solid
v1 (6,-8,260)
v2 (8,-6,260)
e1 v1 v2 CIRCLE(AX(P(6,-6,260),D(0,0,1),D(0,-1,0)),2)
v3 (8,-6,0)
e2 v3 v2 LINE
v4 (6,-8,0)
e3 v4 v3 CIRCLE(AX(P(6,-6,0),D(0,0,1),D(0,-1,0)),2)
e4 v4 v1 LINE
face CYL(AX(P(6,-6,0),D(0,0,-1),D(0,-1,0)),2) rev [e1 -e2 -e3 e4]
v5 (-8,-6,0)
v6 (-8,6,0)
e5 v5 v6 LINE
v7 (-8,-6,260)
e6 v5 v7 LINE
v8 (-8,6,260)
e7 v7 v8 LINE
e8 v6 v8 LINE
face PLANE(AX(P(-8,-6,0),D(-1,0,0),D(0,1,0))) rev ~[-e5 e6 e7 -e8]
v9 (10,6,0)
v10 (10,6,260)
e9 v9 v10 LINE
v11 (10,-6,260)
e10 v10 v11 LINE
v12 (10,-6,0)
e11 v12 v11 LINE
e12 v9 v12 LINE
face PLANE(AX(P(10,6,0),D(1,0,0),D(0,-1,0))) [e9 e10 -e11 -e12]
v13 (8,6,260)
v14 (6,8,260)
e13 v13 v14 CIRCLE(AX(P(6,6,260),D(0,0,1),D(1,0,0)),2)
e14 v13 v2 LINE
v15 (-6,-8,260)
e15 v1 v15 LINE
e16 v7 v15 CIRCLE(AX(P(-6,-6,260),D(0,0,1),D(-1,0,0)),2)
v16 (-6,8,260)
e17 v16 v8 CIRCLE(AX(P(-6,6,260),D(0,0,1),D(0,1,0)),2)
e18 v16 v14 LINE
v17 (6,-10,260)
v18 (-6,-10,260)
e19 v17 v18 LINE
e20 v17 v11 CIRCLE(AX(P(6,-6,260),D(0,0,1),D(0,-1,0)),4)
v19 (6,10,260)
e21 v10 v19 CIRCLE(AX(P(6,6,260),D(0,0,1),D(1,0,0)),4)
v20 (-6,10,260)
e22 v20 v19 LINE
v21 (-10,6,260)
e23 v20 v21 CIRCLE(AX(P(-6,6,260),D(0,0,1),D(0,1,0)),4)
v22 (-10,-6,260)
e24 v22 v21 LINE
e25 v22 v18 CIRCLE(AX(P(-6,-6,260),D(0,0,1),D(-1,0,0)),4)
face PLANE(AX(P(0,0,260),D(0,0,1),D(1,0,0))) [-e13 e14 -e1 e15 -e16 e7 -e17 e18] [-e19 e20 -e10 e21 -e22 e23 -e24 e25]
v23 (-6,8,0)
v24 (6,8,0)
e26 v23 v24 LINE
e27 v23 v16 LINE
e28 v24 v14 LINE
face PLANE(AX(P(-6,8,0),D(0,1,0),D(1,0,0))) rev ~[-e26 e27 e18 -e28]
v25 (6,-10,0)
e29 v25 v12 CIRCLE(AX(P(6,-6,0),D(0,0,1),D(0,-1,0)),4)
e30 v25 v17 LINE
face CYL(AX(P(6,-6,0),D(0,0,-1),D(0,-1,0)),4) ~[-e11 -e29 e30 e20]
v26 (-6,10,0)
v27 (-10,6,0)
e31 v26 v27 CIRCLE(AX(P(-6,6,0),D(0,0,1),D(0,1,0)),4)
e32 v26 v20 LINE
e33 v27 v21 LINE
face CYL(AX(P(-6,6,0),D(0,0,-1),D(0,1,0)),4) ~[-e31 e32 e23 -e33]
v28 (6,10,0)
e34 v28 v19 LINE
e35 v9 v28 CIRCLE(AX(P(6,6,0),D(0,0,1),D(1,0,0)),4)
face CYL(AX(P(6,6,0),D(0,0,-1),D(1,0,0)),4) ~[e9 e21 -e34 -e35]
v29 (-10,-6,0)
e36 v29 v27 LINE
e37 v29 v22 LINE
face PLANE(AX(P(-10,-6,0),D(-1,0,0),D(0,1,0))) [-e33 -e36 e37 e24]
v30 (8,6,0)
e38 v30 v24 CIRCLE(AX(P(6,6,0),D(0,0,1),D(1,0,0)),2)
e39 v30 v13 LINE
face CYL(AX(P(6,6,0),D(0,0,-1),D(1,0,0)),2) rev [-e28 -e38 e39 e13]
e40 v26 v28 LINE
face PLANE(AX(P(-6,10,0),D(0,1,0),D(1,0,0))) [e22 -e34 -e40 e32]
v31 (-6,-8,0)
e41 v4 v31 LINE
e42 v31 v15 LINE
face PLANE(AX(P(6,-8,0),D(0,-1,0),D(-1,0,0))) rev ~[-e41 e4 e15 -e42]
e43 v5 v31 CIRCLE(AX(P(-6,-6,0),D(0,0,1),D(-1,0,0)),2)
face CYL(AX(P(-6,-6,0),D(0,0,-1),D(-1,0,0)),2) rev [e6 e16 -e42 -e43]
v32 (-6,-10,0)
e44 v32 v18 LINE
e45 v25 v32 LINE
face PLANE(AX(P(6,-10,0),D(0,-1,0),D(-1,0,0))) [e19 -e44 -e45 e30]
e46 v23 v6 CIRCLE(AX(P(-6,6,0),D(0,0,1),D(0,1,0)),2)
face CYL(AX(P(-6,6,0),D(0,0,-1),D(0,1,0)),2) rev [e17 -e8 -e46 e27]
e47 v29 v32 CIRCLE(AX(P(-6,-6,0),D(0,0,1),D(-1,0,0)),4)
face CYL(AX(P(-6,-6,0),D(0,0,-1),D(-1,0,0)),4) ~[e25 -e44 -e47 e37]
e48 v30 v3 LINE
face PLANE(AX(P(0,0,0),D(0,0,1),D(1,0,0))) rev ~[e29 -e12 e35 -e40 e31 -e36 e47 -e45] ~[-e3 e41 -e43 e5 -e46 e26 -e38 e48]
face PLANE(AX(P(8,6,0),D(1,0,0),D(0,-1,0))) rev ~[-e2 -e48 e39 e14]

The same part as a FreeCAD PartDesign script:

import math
import FreeCAD as App
import Part
import Sketcher

doc = App.newDocument("Part")
body = doc.addObject("PartDesign::Body", "Body")

sketch1 = doc.addObject("Sketcher::SketchObject", "Sketch")
body.addObject(sketch1)
sketch1.AttachmentSupport = (doc.XY_Plane, [""])
sketch1.MapMode = "FlatFace"
sketch1.addGeometry([
    Part.LineSegment(App.Vector(-10, 6, 0), App.Vector(-10, -6, 0)),
    Part.ArcOfCircle(Part.Circle(App.Vector(-6, -6, 0), App.Vector(0, 0, 1), 4), math.radians(180), math.radians(270)),
    Part.LineSegment(App.Vector(-6, -10, 0), App.Vector(6, -10, 0)),
    Part.ArcOfCircle(Part.Circle(App.Vector(6, -6, 0), App.Vector(0, 0, 1), 4), math.radians(-90), math.radians(0)),
    Part.LineSegment(App.Vector(10, -6, 0), App.Vector(10, 6, 0)),
    Part.ArcOfCircle(Part.Circle(App.Vector(6, 6, 0), App.Vector(0, 0, 1), 4), math.radians(0), math.radians(90)),
    Part.LineSegment(App.Vector(6, 10, 0), App.Vector(-6, 10, 0)),
    Part.ArcOfCircle(Part.Circle(App.Vector(-6, 6, 0), App.Vector(0, 0, 1), 4), math.radians(90), math.radians(180)),
    Part.ArcOfCircle(Part.Circle(App.Vector(-6, 6, 0), App.Vector(0, 0, 1), 2), math.radians(90), math.radians(180)),
    Part.LineSegment(App.Vector(-6, 8, 0), App.Vector(6, 8, 0)),
    Part.ArcOfCircle(Part.Circle(App.Vector(6, 6, 0), App.Vector(0, 0, 1), 2), math.radians(0), math.radians(90)),
    Part.LineSegment(App.Vector(8, 6, 0), App.Vector(8, -6, 0)),
    Part.ArcOfCircle(Part.Circle(App.Vector(6, -6, 0), App.Vector(0, 0, 1), 2), math.radians(-90), math.radians(0)),
    Part.LineSegment(App.Vector(6, -8, 0), App.Vector(-6, -8, 0)),
    Part.ArcOfCircle(Part.Circle(App.Vector(-6, -6, 0), App.Vector(0, 0, 1), 2), math.radians(180), math.radians(270)),
    Part.LineSegment(App.Vector(-8, -6, 0), App.Vector(-8, 6, 0)),
], False)
sketch1.addConstraint([
    Sketcher.Constraint("Tangent", 0, 2, 1, 1),
    Sketcher.Constraint("Tangent", 1, 2, 2, 1),
    Sketcher.Constraint("Tangent", 2, 2, 3, 1),
    Sketcher.Constraint("Tangent", 3, 2, 4, 1),
    Sketcher.Constraint("Tangent", 4, 2, 5, 1),
    Sketcher.Constraint("Tangent", 5, 2, 6, 1),
    Sketcher.Constraint("Tangent", 6, 2, 7, 1),
    Sketcher.Constraint("Tangent", 7, 2, 0, 1),
    Sketcher.Constraint("Tangent", 8, 1, 9, 1),
    Sketcher.Constraint("Tangent", 9, 2, 10, 2),
    Sketcher.Constraint("Tangent", 10, 1, 11, 1),
    Sketcher.Constraint("Tangent", 11, 2, 12, 2),
    Sketcher.Constraint("Tangent", 12, 1, 13, 1),
    Sketcher.Constraint("Tangent", 13, 2, 14, 2),
    Sketcher.Constraint("Tangent", 14, 1, 15, 1),
    Sketcher.Constraint("Tangent", 15, 2, 8, 2),
    Sketcher.Constraint("Vertical", 0),
    Sketcher.Constraint("Horizontal", 2),
    Sketcher.Constraint("Vertical", 4),
    Sketcher.Constraint("Horizontal", 6),
    Sketcher.Constraint("Horizontal", 9),
    Sketcher.Constraint("Vertical", 11),
    Sketcher.Constraint("Horizontal", 13),
    Sketcher.Constraint("Vertical", 15),
    Sketcher.Constraint("Coincident", 8, 3, 7, 3),
    Sketcher.Constraint("Coincident", 10, 3, 5, 3),
    Sketcher.Constraint("Coincident", 12, 3, 3, 3),
    Sketcher.Constraint("Equal", 1, 3),
    Sketcher.Constraint("Equal", 3, 5),
    Sketcher.Constraint("Equal", 5, 7),
    Sketcher.Constraint("Equal", 12, 14),
    Sketcher.Constraint("Symmetric", 1, 3, 5, 3, -1, 1),
    Sketcher.Constraint("Equal", 13, 0),
    Sketcher.Constraint("Radius", 1, 4.0),
    Sketcher.Constraint("Radius", 8, 2.0),
    Sketcher.Constraint("DistanceX", 0, 2, -1, 1, 10.0),
])
pad1 = doc.addObject("PartDesign::Pad", "Pad")
body.addObject(pad1)
pad1.Profile = sketch1
pad1.Length = 260

doc.recompute()
